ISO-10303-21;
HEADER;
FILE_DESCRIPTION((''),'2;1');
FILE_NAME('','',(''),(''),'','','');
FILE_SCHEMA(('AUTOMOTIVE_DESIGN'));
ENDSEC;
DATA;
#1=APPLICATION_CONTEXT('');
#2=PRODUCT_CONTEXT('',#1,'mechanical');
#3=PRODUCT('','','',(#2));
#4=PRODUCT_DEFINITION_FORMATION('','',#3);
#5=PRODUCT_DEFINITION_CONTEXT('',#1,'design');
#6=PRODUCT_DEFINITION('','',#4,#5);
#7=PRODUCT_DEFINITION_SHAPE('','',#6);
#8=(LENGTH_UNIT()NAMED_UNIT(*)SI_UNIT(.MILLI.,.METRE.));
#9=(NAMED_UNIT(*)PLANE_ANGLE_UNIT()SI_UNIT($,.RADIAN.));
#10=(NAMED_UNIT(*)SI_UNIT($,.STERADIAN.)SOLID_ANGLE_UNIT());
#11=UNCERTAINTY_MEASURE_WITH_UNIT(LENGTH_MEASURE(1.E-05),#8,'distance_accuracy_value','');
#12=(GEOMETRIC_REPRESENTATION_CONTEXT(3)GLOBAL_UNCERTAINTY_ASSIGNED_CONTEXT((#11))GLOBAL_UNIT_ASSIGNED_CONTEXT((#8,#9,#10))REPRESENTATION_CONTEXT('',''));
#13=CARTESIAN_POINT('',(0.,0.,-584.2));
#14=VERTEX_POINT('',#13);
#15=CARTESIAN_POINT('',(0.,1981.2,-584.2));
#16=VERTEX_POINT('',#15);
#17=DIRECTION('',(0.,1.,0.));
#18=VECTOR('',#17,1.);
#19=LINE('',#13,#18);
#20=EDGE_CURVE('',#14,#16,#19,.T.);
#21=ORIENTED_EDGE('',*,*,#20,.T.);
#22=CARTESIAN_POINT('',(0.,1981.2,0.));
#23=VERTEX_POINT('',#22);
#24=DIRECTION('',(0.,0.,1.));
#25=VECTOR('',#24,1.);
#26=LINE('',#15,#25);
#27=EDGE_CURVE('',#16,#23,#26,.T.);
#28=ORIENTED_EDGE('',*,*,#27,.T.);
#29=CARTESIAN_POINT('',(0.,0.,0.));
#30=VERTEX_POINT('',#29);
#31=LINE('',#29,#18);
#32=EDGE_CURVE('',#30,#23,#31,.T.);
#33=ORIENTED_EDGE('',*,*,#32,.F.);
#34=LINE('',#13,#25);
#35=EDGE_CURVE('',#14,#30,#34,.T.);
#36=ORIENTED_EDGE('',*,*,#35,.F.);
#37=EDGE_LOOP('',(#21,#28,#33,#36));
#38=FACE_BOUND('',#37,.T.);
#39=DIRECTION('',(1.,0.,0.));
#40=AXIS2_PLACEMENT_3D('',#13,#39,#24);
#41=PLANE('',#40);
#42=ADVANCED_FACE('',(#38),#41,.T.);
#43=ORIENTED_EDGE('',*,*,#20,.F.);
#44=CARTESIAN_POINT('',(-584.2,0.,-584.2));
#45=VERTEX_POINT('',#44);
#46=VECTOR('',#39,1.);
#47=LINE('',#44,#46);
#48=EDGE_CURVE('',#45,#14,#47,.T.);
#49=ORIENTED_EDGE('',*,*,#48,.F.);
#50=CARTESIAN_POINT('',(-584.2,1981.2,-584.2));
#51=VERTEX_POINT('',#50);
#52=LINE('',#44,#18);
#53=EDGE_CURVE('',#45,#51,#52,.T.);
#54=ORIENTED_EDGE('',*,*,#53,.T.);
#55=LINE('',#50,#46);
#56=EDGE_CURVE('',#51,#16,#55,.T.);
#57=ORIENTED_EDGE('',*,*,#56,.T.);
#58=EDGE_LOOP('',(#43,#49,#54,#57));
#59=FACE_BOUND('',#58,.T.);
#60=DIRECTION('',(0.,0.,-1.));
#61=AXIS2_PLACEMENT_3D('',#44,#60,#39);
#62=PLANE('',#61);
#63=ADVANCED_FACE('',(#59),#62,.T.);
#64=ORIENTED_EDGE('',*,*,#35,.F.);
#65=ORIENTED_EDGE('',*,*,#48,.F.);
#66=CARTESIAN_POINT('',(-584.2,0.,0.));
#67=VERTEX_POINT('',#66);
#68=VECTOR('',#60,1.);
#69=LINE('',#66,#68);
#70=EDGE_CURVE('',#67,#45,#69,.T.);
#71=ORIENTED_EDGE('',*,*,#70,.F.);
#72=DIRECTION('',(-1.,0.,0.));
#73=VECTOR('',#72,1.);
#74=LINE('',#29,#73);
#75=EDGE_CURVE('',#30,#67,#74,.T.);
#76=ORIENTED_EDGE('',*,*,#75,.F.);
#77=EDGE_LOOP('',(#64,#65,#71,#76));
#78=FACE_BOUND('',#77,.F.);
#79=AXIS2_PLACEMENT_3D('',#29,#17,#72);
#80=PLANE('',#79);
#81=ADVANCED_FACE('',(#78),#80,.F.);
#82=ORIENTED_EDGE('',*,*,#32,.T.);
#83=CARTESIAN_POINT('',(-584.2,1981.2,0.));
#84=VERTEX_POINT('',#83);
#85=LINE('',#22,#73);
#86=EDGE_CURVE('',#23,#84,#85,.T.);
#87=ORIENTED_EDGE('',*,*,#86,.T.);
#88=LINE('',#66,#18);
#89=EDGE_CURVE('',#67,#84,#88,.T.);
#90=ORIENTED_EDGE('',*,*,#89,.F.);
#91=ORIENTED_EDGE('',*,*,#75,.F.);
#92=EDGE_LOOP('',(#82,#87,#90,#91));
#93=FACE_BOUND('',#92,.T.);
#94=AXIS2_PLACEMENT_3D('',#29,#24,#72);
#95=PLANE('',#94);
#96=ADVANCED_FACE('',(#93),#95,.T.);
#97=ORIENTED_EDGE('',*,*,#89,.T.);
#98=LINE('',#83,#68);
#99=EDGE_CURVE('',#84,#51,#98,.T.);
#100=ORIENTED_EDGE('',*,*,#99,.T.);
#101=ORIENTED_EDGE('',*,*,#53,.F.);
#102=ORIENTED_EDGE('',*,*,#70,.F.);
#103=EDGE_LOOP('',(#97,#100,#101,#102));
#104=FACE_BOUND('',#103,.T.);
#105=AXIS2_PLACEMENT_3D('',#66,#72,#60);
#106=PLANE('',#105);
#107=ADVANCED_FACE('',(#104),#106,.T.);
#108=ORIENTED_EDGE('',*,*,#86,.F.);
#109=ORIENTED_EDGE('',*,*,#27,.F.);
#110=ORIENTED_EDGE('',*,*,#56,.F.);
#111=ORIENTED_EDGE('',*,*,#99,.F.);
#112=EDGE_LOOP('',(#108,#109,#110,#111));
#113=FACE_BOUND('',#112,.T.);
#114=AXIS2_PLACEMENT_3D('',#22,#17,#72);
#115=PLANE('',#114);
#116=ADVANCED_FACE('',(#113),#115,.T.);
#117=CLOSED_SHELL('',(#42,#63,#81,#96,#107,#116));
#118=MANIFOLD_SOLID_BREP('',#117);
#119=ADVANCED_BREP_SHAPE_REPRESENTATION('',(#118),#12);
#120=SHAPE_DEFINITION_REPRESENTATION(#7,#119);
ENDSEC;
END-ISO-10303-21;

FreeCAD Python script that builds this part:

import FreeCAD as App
import Part
import Sketcher
Q = App.Units.Quantity

doc = App.newDocument("Part")
body = doc.addObject("PartDesign::Body", "Body")

# Sketch on XZ plane
sketch1 = body.newObject("Sketcher::SketchObject", "Sketch")
sketch1.AttachmentSupport = (doc.getObject("XZ_Plane"), [""])
sketch1.MapMode = "FlatFace"
sketch1.addGeometry(Part.LineSegment(App.Vector(-584, 0, 0), App.Vector(0, 0, 0)), False)
sketch1.addGeometry(Part.LineSegment(App.Vector(0, 0, 0), App.Vector(0, -584, 0)), False)
sketch1.addGeometry(Part.LineSegment(App.Vector(0, -584, 0), App.Vector(-584, -584, 0)), False)
sketch1.addGeometry(Part.LineSegment(App.Vector(-584, -584, 0), App.Vector(-584, 0, 0)), False)
sketch1.addConstraint(Sketcher.Constraint("Coincident", 0, 2, 1, 1))
sketch1.addConstraint(Sketcher.Constraint("Coincident", 1, 2, 2, 1))
sketch1.addConstraint(Sketcher.Constraint("Coincident", 2, 2, 3, 1))
sketch1.addConstraint(Sketcher.Constraint("Coincident", 3, 2, 0, 1))
sketch1.addConstraint(Sketcher.Constraint("Horizontal", 0))
sketch1.addConstraint(Sketcher.Constraint("Vertical", 1))
sketch1.addConstraint(Sketcher.Constraint("Horizontal", 2))
sketch1.addConstraint(Sketcher.Constraint("Vertical", 3))
sketch1.addConstraint(Sketcher.Constraint("Coincident", 0, 2, -1, 1))
sketch1.addConstraint(Sketcher.Constraint("Equal", 2, 1))
sketch1.addConstraint(Sketcher.Constraint("DistanceX", 0, 1, 0, 2, Q("23 in")))
pad1 = body.newObject("PartDesign::Pad", "Pad")
pad1.Profile = sketch1
pad1.Length = Q("78 in")
pad1.Reversed = True

doc.recompute()
